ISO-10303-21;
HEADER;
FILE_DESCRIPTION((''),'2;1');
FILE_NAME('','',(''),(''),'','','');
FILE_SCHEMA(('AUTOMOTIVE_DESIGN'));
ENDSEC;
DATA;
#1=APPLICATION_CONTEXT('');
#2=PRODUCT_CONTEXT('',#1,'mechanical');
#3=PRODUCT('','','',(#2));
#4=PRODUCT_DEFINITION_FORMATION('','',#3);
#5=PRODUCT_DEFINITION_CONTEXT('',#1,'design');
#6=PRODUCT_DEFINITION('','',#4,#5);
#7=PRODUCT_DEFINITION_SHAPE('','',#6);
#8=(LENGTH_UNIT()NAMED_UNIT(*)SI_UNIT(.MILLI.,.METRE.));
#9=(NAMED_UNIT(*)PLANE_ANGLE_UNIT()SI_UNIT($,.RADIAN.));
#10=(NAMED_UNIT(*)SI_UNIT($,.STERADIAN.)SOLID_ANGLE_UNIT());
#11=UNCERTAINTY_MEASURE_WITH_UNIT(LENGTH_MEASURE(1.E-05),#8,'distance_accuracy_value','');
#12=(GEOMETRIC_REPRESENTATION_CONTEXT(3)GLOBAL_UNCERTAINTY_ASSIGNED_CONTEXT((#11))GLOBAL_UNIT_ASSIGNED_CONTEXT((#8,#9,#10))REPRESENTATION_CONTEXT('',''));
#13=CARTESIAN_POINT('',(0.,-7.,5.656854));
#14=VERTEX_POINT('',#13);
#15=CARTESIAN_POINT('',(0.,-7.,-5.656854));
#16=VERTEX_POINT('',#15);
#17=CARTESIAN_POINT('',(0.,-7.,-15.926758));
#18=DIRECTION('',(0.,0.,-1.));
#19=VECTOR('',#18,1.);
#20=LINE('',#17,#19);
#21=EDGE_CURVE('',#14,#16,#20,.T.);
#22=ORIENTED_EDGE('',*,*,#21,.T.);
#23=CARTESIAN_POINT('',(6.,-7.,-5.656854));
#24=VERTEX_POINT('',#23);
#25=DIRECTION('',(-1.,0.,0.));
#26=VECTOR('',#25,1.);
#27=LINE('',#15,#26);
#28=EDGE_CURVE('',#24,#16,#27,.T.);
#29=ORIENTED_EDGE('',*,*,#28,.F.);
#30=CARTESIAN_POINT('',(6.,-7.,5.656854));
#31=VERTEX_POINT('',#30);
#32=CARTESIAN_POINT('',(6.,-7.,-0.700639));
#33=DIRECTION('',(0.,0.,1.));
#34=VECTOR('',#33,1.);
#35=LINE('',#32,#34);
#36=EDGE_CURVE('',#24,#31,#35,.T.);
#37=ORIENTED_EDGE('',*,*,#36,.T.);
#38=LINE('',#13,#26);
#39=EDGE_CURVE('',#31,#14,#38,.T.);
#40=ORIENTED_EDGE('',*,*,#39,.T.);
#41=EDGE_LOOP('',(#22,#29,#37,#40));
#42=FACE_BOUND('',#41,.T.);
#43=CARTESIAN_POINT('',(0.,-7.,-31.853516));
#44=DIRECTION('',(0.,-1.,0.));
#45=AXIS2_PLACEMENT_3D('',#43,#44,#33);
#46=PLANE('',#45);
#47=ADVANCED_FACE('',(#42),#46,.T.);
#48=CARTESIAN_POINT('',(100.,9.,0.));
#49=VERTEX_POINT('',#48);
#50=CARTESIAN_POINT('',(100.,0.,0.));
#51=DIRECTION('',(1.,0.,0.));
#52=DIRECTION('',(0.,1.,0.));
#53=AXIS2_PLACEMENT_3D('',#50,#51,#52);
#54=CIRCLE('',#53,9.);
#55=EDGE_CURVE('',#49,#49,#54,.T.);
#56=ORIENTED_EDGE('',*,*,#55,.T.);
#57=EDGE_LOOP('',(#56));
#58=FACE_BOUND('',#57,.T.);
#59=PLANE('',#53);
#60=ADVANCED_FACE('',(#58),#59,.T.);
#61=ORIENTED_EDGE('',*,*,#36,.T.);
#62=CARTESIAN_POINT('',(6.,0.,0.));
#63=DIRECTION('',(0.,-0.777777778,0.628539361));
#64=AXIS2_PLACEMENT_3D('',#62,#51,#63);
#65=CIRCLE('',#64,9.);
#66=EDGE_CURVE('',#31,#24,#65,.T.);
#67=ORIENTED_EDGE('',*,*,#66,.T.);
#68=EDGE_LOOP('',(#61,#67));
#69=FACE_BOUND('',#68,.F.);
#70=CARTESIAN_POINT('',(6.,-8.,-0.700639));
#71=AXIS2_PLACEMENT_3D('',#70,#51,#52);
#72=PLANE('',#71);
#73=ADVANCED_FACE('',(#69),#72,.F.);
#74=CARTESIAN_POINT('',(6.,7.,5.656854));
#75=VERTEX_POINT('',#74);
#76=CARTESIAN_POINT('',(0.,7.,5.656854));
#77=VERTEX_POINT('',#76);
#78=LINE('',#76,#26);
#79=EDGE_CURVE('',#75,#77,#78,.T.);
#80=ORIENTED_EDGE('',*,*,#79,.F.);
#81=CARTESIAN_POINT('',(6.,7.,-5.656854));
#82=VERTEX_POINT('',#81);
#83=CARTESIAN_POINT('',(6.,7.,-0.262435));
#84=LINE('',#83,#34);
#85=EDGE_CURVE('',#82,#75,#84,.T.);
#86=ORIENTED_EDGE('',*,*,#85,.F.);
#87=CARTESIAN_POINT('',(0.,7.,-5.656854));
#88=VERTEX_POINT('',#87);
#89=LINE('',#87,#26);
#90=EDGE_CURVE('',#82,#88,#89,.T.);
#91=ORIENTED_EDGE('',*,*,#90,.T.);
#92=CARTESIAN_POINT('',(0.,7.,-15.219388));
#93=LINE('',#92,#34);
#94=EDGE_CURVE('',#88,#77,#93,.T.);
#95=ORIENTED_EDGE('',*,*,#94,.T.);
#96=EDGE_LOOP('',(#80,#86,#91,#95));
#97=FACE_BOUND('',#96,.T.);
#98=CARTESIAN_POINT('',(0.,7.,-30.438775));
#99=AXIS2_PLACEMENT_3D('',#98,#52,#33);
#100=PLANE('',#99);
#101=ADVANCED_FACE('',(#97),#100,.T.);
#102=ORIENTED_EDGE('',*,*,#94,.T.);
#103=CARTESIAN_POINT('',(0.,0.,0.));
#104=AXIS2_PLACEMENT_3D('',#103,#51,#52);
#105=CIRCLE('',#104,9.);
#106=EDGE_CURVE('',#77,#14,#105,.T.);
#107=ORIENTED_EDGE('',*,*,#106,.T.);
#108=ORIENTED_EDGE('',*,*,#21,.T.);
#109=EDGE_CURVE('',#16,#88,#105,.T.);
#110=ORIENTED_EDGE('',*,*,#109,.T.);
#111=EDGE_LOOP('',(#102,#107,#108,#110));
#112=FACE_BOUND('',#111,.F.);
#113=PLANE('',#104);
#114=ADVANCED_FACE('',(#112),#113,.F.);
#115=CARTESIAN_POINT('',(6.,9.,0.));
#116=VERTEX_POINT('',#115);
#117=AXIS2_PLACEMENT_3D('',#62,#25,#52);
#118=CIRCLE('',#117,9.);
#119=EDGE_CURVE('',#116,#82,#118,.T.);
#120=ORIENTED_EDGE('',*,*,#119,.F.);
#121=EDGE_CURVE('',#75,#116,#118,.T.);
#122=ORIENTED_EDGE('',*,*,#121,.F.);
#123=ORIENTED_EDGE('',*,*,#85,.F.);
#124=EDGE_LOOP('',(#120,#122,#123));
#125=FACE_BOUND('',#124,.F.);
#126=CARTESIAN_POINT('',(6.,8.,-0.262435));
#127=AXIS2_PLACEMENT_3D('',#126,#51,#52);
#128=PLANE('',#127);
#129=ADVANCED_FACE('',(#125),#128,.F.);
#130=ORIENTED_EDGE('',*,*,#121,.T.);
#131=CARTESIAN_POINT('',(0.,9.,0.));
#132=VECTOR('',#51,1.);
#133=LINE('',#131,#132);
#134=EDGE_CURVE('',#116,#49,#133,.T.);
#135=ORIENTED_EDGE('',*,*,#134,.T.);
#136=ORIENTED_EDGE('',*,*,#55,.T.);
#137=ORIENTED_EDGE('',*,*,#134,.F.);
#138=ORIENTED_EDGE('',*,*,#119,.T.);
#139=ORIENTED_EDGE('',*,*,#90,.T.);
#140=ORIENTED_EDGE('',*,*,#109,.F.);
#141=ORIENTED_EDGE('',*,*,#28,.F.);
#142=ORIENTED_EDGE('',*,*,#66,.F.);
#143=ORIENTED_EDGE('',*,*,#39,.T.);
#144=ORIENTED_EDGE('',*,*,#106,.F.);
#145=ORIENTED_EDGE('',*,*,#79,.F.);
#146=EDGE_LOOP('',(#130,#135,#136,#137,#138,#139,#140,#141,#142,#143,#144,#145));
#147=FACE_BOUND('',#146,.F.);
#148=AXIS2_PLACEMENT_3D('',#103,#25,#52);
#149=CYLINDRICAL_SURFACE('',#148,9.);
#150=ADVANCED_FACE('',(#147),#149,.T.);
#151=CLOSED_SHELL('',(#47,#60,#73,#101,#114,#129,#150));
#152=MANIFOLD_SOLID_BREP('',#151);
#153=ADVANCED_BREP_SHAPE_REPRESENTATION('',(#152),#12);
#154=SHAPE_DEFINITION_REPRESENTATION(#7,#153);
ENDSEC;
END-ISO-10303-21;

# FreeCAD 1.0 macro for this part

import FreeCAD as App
import Part
import Sketcher
from FreeCAD import Vector


def add_polygon(sketch, points):
    """Adds a closed chain of lines whose ends are joined by coincident constraints."""
    first, n = sketch.GeometryCount, len(points)
    for a, b in zip(points, points[1:] + points[:1]):
        sketch.addGeometry(Part.LineSegment(App.Vector(*a, 0), App.Vector(*b, 0)), False)
    for i in range(n):
        sketch.addConstraint(Sketcher.Constraint("Coincident", first + i, 2, first + (i + 1) % n, 1))

doc = App.newDocument("Part")
body = doc.addObject("PartDesign::Body", "Body")

# Sketch on YZ plane
sketch1 = doc.addObject("Sketcher::SketchObject", "Sketch")
body.addObject(sketch1)
sketch1.AttachmentSupport = (doc.YZ_Plane, [""])
sketch1.MapMode = "FlatFace"
sketch1.addGeometry(Part.Circle(Vector(0, 0, 0), Vector(0, 0, 1), 9), False)
sketch1.addConstraint([
    Sketcher.Constraint("Coincident", 0, 3, -1, 1),
    Sketcher.Constraint("Diameter", 0, 18.0),
])
pad1 = doc.addObject("PartDesign::Pad", "Pad")
body.addObject(pad1)
pad1.Profile = sketch1
pad1.Length = 100

# Sketch on YZ plane
sketch2 = doc.addObject("Sketcher::SketchObject", "Sketch001")
body.addObject(sketch2)
sketch2.AttachmentSupport = (doc.YZ_Plane, [""])
sketch2.MapMode = "FlatFace"
add_polygon(sketch2, [(-9, 30.5), (-9, -31.9), (-7, -31.9), (-7, 30.5)])  # lines 0-3
add_polygon(sketch2, [(7, 29.9), (7, -30.4), (9, -30.4), (9, 29.9)])  # lines 4-7
sketch2.addConstraint([
    Sketcher.Constraint("Vertical", 0),
    Sketcher.Constraint("Horizontal", 1),
    Sketcher.Constraint("Vertical", 2),
    Sketcher.Constraint("Horizontal", 3),
    Sketcher.Constraint("Vertical", 4),
    Sketcher.Constraint("Horizontal", 5),
    Sketcher.Constraint("Vertical", 6),
    Sketcher.Constraint("Horizontal", 7),
    Sketcher.Constraint("Equal", 3, 5),
    Sketcher.Constraint("DistanceX", 1, 1, 1, 2, 2.0),
    Sketcher.Constraint("DistanceX", 0, 2, -1, 1, 9.0),
    Sketcher.Constraint("DistanceX", -1, 1, 4, 2, 7.0),
    Sketcher.Constraint("DistanceY", 4, 2, 4, 1, 60.352681),
    Sketcher.Constraint("DistanceY", 0, 2, 0, 1, 62.305753),
    Sketcher.Constraint("DistanceY", 1, 2, 4, 2, 1.41474),
    Sketcher.Constraint("DistanceY", 0, 2, -1, 1, 31.853516),
])
pocket1 = doc.addObject("PartDesign::Pocket", "Pocket")
body.addObject(pocket1)
pocket1.Profile = sketch2
pocket1.Length = 12
pocket1.Midplane = True

doc.recompute()
